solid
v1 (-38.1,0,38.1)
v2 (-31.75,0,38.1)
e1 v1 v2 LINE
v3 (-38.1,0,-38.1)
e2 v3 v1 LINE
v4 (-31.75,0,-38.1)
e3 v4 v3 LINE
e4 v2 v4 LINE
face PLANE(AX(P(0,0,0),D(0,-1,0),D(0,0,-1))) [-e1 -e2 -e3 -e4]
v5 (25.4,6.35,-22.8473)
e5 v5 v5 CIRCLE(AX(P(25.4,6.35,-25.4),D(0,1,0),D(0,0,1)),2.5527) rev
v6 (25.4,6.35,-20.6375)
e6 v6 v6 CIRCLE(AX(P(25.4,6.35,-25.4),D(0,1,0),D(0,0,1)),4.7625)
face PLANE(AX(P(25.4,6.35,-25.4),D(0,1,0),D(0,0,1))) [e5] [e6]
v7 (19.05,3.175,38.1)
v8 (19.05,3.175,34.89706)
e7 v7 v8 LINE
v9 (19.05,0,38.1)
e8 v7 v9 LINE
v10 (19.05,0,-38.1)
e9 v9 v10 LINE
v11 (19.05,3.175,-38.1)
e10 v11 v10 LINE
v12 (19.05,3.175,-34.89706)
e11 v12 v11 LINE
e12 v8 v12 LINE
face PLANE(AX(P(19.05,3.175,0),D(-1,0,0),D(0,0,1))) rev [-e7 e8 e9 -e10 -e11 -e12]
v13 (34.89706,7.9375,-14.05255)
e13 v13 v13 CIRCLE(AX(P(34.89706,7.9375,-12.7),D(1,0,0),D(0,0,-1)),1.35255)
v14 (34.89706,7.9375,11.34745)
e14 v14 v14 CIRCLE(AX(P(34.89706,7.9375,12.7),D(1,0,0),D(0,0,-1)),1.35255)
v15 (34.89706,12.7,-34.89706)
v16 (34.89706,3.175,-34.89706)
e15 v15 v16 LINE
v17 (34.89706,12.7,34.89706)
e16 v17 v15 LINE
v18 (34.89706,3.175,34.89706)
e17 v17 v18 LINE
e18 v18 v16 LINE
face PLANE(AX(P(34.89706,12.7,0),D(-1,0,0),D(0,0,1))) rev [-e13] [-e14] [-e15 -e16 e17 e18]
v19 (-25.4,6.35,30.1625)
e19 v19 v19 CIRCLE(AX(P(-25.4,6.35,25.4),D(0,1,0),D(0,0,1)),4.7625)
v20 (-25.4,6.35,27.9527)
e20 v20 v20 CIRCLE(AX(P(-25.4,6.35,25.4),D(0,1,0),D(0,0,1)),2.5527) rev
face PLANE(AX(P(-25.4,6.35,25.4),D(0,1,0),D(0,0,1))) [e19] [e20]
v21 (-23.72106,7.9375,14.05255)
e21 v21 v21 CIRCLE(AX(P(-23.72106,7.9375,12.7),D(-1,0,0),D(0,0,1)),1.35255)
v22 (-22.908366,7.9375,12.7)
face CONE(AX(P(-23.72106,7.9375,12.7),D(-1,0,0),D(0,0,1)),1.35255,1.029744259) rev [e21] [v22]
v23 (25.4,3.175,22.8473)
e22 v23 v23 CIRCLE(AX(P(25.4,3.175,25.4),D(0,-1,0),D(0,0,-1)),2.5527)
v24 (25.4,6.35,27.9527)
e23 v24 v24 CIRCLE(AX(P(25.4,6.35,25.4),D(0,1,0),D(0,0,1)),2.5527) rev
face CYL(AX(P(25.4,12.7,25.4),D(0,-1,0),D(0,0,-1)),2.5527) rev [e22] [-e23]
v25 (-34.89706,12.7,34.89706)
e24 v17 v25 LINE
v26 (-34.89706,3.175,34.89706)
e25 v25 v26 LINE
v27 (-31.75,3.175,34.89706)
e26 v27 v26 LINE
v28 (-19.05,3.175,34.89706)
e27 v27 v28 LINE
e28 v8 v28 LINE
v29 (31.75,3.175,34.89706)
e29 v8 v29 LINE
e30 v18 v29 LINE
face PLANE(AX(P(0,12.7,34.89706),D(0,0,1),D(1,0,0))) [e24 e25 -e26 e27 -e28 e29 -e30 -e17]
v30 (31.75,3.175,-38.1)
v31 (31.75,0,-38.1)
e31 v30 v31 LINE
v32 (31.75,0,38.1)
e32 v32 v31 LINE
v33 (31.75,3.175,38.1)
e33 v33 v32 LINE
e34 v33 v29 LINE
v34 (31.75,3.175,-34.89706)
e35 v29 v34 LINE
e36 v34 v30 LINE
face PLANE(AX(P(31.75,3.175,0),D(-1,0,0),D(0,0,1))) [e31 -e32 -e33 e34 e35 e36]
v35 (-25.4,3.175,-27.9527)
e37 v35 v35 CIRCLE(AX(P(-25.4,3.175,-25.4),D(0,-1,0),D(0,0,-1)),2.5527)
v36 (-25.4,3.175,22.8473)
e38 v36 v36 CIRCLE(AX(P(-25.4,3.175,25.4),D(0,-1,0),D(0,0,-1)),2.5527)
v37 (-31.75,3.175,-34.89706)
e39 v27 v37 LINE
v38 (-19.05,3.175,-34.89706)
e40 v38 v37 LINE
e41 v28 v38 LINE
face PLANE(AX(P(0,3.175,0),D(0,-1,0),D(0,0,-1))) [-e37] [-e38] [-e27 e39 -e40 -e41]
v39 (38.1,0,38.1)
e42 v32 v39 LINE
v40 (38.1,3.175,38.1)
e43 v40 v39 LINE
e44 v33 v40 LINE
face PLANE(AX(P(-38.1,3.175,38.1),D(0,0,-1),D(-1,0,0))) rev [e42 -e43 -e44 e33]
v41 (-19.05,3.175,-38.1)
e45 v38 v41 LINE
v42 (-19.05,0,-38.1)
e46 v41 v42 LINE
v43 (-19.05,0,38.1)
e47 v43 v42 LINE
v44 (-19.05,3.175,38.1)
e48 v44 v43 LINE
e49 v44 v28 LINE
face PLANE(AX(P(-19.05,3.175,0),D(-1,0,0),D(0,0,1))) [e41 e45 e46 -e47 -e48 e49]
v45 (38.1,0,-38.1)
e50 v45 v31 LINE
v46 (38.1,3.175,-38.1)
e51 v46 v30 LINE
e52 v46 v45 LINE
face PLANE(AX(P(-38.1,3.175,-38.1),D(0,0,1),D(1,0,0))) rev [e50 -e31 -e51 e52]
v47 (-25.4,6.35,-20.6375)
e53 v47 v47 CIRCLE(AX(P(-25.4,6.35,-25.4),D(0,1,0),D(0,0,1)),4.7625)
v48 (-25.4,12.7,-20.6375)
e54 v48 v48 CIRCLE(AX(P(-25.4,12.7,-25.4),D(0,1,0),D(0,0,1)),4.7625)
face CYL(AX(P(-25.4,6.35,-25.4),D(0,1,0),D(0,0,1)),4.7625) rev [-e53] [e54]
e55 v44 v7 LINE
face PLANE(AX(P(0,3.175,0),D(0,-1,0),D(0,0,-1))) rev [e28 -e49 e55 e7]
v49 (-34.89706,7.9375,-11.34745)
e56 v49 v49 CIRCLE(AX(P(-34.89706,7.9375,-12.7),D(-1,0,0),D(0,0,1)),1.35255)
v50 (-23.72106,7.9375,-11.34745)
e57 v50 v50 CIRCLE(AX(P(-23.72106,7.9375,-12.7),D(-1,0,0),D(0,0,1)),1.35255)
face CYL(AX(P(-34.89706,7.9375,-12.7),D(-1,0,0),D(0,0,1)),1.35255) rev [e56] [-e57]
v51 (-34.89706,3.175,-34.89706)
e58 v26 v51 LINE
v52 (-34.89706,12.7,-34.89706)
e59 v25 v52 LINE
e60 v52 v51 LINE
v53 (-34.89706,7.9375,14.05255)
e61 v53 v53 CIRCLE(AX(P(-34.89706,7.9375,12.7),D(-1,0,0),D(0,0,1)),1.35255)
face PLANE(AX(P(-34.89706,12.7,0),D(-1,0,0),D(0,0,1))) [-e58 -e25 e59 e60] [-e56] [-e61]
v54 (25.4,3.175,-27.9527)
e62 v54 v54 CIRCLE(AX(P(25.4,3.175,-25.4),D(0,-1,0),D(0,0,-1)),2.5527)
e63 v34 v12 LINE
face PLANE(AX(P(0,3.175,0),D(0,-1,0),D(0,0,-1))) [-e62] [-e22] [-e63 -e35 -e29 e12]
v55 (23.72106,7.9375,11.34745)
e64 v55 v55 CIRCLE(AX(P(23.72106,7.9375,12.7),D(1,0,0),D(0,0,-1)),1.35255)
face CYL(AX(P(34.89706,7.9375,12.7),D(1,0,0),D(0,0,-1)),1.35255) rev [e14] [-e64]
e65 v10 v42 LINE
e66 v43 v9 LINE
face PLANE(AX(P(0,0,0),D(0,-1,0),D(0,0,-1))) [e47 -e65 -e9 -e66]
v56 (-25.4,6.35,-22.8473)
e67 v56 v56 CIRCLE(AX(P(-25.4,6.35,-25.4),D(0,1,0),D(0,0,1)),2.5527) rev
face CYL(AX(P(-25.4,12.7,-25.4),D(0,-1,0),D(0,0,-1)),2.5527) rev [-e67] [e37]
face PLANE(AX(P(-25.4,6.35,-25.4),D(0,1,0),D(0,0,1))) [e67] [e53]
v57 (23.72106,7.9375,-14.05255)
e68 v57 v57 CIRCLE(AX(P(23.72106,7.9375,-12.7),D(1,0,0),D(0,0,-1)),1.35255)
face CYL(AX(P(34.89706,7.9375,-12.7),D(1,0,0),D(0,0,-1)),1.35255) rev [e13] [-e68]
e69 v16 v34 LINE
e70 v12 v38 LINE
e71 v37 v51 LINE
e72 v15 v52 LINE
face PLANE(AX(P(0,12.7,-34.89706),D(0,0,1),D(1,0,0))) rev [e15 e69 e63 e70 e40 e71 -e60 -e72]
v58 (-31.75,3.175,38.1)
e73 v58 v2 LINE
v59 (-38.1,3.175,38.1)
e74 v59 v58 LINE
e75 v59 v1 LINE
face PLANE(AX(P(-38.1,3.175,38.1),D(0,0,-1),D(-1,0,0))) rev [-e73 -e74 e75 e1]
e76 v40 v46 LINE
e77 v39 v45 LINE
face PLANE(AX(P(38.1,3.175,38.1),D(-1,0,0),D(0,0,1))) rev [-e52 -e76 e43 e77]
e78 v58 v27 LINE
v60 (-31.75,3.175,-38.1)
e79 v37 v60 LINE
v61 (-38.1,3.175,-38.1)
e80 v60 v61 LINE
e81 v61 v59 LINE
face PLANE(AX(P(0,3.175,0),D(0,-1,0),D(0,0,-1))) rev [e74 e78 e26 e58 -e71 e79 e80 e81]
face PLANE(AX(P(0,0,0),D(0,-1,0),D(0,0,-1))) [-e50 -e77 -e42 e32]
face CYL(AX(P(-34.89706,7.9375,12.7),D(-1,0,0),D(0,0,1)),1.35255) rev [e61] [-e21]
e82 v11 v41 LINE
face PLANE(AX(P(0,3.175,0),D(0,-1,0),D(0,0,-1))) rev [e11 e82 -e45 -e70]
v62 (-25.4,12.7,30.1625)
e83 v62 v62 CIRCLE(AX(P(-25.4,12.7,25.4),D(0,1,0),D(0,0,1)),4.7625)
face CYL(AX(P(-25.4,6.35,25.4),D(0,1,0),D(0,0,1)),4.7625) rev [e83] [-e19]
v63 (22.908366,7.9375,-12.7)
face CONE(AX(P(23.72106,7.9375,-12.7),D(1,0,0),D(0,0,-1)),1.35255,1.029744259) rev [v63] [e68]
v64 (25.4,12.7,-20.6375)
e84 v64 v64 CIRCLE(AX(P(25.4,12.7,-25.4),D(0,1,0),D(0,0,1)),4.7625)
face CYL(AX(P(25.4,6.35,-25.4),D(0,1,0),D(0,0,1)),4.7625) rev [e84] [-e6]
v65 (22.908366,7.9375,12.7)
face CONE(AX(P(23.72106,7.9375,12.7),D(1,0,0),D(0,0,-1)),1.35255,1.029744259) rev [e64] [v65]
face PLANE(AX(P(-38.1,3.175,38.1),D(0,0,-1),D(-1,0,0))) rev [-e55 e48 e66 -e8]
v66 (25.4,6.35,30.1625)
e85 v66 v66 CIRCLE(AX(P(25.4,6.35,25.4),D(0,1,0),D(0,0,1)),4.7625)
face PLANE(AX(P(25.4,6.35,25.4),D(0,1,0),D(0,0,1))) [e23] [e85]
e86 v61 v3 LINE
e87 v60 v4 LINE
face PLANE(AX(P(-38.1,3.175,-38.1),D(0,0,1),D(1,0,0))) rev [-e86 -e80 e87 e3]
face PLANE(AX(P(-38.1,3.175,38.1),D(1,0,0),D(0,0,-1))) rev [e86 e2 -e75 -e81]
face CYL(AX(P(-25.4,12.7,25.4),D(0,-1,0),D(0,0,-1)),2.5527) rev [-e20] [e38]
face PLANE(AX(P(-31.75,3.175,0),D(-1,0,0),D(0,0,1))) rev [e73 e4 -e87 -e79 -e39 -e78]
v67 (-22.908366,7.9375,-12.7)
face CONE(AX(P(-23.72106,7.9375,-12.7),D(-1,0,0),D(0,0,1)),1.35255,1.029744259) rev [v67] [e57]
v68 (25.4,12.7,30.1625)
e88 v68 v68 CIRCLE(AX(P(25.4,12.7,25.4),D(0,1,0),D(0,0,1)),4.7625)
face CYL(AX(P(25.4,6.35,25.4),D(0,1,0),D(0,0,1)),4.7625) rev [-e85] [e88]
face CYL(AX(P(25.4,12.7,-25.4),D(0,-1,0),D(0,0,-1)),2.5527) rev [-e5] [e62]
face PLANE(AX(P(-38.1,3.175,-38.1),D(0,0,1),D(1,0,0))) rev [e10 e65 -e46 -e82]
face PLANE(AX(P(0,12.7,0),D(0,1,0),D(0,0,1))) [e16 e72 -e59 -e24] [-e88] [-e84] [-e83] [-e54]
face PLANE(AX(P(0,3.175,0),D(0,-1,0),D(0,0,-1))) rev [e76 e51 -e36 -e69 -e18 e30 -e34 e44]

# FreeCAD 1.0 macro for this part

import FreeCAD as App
import Part
import Sketcher

V = App.Vector
Q = App.Units.Quantity


def add_polygon(sketch, points):
    """Adds a closed chain of lines whose ends are joined by coincident constraints."""
    first, n = sketch.GeometryCount, len(points)
    for a, b in zip(points, points[1:] + points[:1]):
        sketch.addGeometry(Part.LineSegment(App.Vector(*a, 0), App.Vector(*b, 0)), False)
    for i in range(n):
        sketch.addConstraint(Sketcher.Constraint("Coincident", first + i, 2, first + (i + 1) % n, 1))

doc = App.newDocument("Part")
body = doc.addObject("PartDesign::Body", "Body")

# Sketch on XZ plane
sketch1 = body.newObject("Sketcher::SketchObject", "Sketch")
sketch1.AttachmentSupport = (doc.getObject("XZ_Plane"), [""])
sketch1.MapMode = "FlatFace"
add_polygon(sketch1, [(-38, -38), (-38, 38), (38, 38), (38, -38)])  # lines 0-3
sketch1.addConstraint([
    Sketcher.Constraint("Vertical", 0),
    Sketcher.Constraint("Horizontal", 1),
    Sketcher.Constraint("Vertical", 2),
    Sketcher.Constraint("Horizontal", 3),
    Sketcher.Constraint("Symmetric", 0, 2, 2, 2, -1, 1),
    Sketcher.Constraint("Equal", 3, 0),
    Sketcher.Constraint("DistanceX", 1, 1, 1, 2, Q("3 in")),
])
pad1 = body.newObject("PartDesign::Pad", "Pad")
pad1.Profile = sketch1
pad1.Length = Q("0.125 in")
pad1.Reversed = True

# Sketch on XZ plane
sketch2 = body.newObject("Sketcher::SketchObject", "Sketch001")
sketch2.AttachmentSupport = (doc.getObject("XZ_Plane"), [""])
sketch2.MapMode = "FlatFace"
sketch2.AttachmentOffset = App.Placement(V(0, 0, -0.125 * 25.4), App.Rotation())
add_polygon(sketch2, [(-35, -35), (-35, 35), (35, 35), (35, -35)])  # lines 0-3
sketch2.addConstraint([
    Sketcher.Constraint("Vertical", 0),
    Sketcher.Constraint("Horizontal", 1),
    Sketcher.Constraint("Vertical", 2),
    Sketcher.Constraint("Horizontal", 3),
    Sketcher.Constraint("Symmetric", 0, 2, 2, 2, -1, 1),
    Sketcher.Constraint("Equal", 3, 0),
    Sketcher.Constraint("DistanceX", 1, 1, 1, 2, Q("2.7478 in")),
])
pad2 = body.newObject("PartDesign::Pad", "Pad001")
pad2.Profile = sketch2
pad2.Length = Q("0.375 in")
pad2.Reversed = True

# Sketch on XZ plane
sketch3 = body.newObject("Sketcher::SketchObject", "Sketch002")
sketch3.AttachmentSupport = (doc.getObject("XZ_Plane"), [""])
sketch3.MapMode = "FlatFace"
sketch3.AttachmentOffset = App.Placement(V(0, 0, -0.3125 * 25.4), App.Rotation())
add_polygon(sketch3, [(22.9, 12.7), (34.9, 12.7), (34.9, 11.3), (23.7, 11.3)])  # lines 0-3
sketch3.addGeometry(Part.LineSegment(V(34.9, 12.7, 0), V(22.9, 12.7, 0)), True)  # axis
sketch3.addConstraint([
    Sketcher.Constraint("Horizontal", 0),
    Sketcher.Constraint("Vertical", 1),
    Sketcher.Constraint("Horizontal", 2),
    Sketcher.Constraint("Horizontal", 4),
    Sketcher.Constraint("Coincident", 4, 1, 0, 2),
    Sketcher.Constraint("Equal", 0, 4),
    Sketcher.Constraint("Angle", 3, Q("121 deg")),
    Sketcher.Constraint("DistanceX", 2, 2, 2, 1, Q("0.44 in")),
    Sketcher.Constraint("DistanceY", -1, 1, 0, 2, Q("0.5 in")),
    Sketcher.Constraint("DistanceX", -1, 1, 0, 2, Q("1.3739 in")),
    Sketcher.Constraint("DistanceY", 1, 2, 1, 1, Q("1.35255 mm")),
])
groove = body.newObject("PartDesign::Groove", "Groove")
groove.Profile = sketch3
groove.ReferenceAxis = (sketch3, ["Axis0"])
groove.Angle = 360
doc.recompute()

mirrored = body.newObject("PartDesign::Mirrored", "Mirrored")
mirrored.Originals = [groove]
mirrored.MirrorPlane = (doc.getObject("XY_Plane"), [""])
body.Tip = mirrored
doc.recompute()

mirrored2 = body.newObject("PartDesign::Mirrored", "Mirrored001")
mirrored2.Originals = [groove]
mirrored2.MirrorPlane = (doc.getObject("YZ_Plane"), [""])
body.Tip = mirrored2

# Sketch on XZ plane
sketch4 = body.newObject("Sketcher::SketchObject", "Sketch003")
sketch4.AttachmentSupport = (doc.getObject("XZ_Plane"), [""])
sketch4.MapMode = "FlatFace"
sketch4.AttachmentOffset = App.Placement(V(0, 0, -0.3125 * 25.4), App.Rotation())
add_polygon(sketch4, [(-22.9, -12.7), (-34.9, -12.7), (-34.9, -11.3), (-23.7, -11.3)])  # lines 0-3
sketch4.addGeometry(Part.LineSegment(V(-34.9, -12.7, 0), V(-22.9, -12.7, 0)), True)  # axis
sketch4.addConstraint([
    Sketcher.Constraint("Horizontal", 0),
    Sketcher.Constraint("Vertical", 1),
    Sketcher.Constraint("Horizontal", 2),
    Sketcher.Constraint("Horizontal", 4),
    Sketcher.Constraint("Coincident", 4, 1, 0, 2),
    Sketcher.Constraint("Equal", 0, 4),
    Sketcher.Constraint("Angle", 3, Q("-59 deg")),
    Sketcher.Constraint("DistanceX", 2, 1, 2, 2, Q("0.44 in")),
    Sketcher.Constraint("DistanceY", 0, 2, -1, 1, Q("0.5 in")),
    Sketcher.Constraint("DistanceX", 0, 2, -1, 1, Q("1.3739 in")),
    Sketcher.Constraint("DistanceY", 1, 1, 1, 2, Q("1.35255 mm")),
])
groove2 = body.newObject("PartDesign::Groove", "Groove001")
groove2.Profile = sketch4
groove2.ReferenceAxis = (sketch4, ["Axis0"])
groove2.Angle = 360

# Sketch on XZ plane
sketch5 = body.newObject("Sketcher::SketchObject", "Sketch004")
sketch5.AttachmentSupport = (doc.getObject("XZ_Plane"), [""])
sketch5.MapMode = "FlatFace"
add_polygon(sketch5, [(-32, 38), (-32, -38), (-19, -38), (-19, 38)])  # lines 0-3
add_polygon(sketch5, [(19, 38), (19, -38), (32, -38), (32, 38)])  # lines 4-7
sketch5.addConstraint([
    Sketcher.Constraint("Vertical", 0),
    Sketcher.Constraint("Horizontal", 1),
    Sketcher.Constraint("Vertical", 2),
    Sketcher.Constraint("Horizontal", 3),
    Sketcher.Constraint("Vertical", 4),
    Sketcher.Constraint("Horizontal", 5),
    Sketcher.Constraint("Vertical", 6),
    Sketcher.Constraint("Horizontal", 7),
    Sketcher.Constraint("Symmetric", 2, 2, 4, 2, -1, 1),
    Sketcher.Constraint("Symmetric", 0, 2, 6, 2, -1, 1),
    Sketcher.Constraint("Horizontal", 1, 2, 4, 2),
    Sketcher.Constraint("DistanceY", 0, 2, 0, 1, Q("3 in")),
    Sketcher.Constraint("DistanceX", 1, 1, 1, 2, Q("0.5 in")),
    Sketcher.Constraint("DistanceX", 0, 2, 4, 2, Q("2 in")),
])
pocket1 = body.newObject("PartDesign::Pocket", "Pocket")
pocket1.Profile = sketch5
pocket1.Length = Q("0.125 in")

# Sketch on XZ plane
sketch6 = body.newObject("Sketcher::SketchObject", "Sketch005")
sketch6.AttachmentSupport = (doc.getObject("XZ_Plane"), [""])
sketch6.MapMode = "FlatFace"
sketch6.AttachmentOffset = App.Placement(V(0, 0, -0.125 * 25.4), App.Rotation())
sketch6.addGeometry([
    Part.Circle(V(-25.4, 25.4, 0), V(0, 0, 1), 2.6),
    Part.Circle(V(25.4, 25.4, 0), V(0, 0, 1), 2.6),
    Part.Circle(V(25.4, -25.4, 0), V(0, 0, 1), 2.6),
    Part.Circle(V(-25.4, -25.4, 0), V(0, 0, 1), 2.6),
], False)
sketch6.addConstraint([
    Sketcher.Constraint("Equal", 0, 1),
    Sketcher.Constraint("Equal", 1, 2),
    Sketcher.Constraint("Equal", 2, 3),
    Sketcher.Constraint("Symmetric", 0, 3, 2, 3, -1, 1),
    Sketcher.Constraint("Symmetric", 1, 3, 3, 3, -1, 1),
    Sketcher.Constraint("Symmetric", 0, 3, 1, 3, -2),
    Sketcher.Constraint("Diameter", 0, Q("0.201 in")),
    Sketcher.Constraint("DistanceX", 0, 3, -1, 1, Q("1 in")),
    Sketcher.Constraint("DistanceY", -1, 1, 0, 3, Q("1 in")),
])
pocket2 = body.newObject("PartDesign::Pocket", "Pocket001")
pocket2.Profile = sketch6
pocket2.Type = "ThroughAll"

# Sketch on XZ plane
sketch7 = body.newObject("Sketcher::SketchObject", "Sketch006")
sketch7.AttachmentSupport = (doc.getObject("XZ_Plane"), [""])
sketch7.MapMode = "FlatFace"
sketch7.AttachmentOffset = App.Placement(V(0, 0, -0.5 * 25.4), App.Rotation())
sketch7.addGeometry([
    Part.Circle(V(-25.4, -25.4, 0), V(0, 0, 1), 4.8),
    Part.Circle(V(25.4, -25.4, 0), V(0, 0, 1), 4.8),
    Part.Circle(V(25.4, 25.4, 0), V(0, 0, 1), 4.8),
    Part.Circle(V(-25.4, 25.4, 0), V(0, 0, 1), 4.8),
], False)
sketch7.addConstraint([
    Sketcher.Constraint("Equal", 0, 1),
    Sketcher.Constraint("Equal", 1, 2),
    Sketcher.Constraint("Equal", 2, 3),
    Sketcher.Constraint("Symmetric", 0, 3, 2, 3, -1, 1),
    Sketcher.Constraint("Symmetric", 1, 3, 3, 3, -1, 1),
    Sketcher.Constraint("Symmetric", 0, 3, 1, 3, -2),
    Sketcher.Constraint("Diameter", 0, Q("0.375 in")),
    Sketcher.Constraint("DistanceX", 0, 3, -1, 1, Q("1 in")),
    Sketcher.Constraint("DistanceY", 0, 3, -1, 1, Q("1 in")),
])
pocket3 = body.newObject("PartDesign::Pocket", "Pocket002")
pocket3.Profile = sketch7
pocket3.Length = Q("0.25 in")
pocket3.Reversed = True

doc.recompute()
